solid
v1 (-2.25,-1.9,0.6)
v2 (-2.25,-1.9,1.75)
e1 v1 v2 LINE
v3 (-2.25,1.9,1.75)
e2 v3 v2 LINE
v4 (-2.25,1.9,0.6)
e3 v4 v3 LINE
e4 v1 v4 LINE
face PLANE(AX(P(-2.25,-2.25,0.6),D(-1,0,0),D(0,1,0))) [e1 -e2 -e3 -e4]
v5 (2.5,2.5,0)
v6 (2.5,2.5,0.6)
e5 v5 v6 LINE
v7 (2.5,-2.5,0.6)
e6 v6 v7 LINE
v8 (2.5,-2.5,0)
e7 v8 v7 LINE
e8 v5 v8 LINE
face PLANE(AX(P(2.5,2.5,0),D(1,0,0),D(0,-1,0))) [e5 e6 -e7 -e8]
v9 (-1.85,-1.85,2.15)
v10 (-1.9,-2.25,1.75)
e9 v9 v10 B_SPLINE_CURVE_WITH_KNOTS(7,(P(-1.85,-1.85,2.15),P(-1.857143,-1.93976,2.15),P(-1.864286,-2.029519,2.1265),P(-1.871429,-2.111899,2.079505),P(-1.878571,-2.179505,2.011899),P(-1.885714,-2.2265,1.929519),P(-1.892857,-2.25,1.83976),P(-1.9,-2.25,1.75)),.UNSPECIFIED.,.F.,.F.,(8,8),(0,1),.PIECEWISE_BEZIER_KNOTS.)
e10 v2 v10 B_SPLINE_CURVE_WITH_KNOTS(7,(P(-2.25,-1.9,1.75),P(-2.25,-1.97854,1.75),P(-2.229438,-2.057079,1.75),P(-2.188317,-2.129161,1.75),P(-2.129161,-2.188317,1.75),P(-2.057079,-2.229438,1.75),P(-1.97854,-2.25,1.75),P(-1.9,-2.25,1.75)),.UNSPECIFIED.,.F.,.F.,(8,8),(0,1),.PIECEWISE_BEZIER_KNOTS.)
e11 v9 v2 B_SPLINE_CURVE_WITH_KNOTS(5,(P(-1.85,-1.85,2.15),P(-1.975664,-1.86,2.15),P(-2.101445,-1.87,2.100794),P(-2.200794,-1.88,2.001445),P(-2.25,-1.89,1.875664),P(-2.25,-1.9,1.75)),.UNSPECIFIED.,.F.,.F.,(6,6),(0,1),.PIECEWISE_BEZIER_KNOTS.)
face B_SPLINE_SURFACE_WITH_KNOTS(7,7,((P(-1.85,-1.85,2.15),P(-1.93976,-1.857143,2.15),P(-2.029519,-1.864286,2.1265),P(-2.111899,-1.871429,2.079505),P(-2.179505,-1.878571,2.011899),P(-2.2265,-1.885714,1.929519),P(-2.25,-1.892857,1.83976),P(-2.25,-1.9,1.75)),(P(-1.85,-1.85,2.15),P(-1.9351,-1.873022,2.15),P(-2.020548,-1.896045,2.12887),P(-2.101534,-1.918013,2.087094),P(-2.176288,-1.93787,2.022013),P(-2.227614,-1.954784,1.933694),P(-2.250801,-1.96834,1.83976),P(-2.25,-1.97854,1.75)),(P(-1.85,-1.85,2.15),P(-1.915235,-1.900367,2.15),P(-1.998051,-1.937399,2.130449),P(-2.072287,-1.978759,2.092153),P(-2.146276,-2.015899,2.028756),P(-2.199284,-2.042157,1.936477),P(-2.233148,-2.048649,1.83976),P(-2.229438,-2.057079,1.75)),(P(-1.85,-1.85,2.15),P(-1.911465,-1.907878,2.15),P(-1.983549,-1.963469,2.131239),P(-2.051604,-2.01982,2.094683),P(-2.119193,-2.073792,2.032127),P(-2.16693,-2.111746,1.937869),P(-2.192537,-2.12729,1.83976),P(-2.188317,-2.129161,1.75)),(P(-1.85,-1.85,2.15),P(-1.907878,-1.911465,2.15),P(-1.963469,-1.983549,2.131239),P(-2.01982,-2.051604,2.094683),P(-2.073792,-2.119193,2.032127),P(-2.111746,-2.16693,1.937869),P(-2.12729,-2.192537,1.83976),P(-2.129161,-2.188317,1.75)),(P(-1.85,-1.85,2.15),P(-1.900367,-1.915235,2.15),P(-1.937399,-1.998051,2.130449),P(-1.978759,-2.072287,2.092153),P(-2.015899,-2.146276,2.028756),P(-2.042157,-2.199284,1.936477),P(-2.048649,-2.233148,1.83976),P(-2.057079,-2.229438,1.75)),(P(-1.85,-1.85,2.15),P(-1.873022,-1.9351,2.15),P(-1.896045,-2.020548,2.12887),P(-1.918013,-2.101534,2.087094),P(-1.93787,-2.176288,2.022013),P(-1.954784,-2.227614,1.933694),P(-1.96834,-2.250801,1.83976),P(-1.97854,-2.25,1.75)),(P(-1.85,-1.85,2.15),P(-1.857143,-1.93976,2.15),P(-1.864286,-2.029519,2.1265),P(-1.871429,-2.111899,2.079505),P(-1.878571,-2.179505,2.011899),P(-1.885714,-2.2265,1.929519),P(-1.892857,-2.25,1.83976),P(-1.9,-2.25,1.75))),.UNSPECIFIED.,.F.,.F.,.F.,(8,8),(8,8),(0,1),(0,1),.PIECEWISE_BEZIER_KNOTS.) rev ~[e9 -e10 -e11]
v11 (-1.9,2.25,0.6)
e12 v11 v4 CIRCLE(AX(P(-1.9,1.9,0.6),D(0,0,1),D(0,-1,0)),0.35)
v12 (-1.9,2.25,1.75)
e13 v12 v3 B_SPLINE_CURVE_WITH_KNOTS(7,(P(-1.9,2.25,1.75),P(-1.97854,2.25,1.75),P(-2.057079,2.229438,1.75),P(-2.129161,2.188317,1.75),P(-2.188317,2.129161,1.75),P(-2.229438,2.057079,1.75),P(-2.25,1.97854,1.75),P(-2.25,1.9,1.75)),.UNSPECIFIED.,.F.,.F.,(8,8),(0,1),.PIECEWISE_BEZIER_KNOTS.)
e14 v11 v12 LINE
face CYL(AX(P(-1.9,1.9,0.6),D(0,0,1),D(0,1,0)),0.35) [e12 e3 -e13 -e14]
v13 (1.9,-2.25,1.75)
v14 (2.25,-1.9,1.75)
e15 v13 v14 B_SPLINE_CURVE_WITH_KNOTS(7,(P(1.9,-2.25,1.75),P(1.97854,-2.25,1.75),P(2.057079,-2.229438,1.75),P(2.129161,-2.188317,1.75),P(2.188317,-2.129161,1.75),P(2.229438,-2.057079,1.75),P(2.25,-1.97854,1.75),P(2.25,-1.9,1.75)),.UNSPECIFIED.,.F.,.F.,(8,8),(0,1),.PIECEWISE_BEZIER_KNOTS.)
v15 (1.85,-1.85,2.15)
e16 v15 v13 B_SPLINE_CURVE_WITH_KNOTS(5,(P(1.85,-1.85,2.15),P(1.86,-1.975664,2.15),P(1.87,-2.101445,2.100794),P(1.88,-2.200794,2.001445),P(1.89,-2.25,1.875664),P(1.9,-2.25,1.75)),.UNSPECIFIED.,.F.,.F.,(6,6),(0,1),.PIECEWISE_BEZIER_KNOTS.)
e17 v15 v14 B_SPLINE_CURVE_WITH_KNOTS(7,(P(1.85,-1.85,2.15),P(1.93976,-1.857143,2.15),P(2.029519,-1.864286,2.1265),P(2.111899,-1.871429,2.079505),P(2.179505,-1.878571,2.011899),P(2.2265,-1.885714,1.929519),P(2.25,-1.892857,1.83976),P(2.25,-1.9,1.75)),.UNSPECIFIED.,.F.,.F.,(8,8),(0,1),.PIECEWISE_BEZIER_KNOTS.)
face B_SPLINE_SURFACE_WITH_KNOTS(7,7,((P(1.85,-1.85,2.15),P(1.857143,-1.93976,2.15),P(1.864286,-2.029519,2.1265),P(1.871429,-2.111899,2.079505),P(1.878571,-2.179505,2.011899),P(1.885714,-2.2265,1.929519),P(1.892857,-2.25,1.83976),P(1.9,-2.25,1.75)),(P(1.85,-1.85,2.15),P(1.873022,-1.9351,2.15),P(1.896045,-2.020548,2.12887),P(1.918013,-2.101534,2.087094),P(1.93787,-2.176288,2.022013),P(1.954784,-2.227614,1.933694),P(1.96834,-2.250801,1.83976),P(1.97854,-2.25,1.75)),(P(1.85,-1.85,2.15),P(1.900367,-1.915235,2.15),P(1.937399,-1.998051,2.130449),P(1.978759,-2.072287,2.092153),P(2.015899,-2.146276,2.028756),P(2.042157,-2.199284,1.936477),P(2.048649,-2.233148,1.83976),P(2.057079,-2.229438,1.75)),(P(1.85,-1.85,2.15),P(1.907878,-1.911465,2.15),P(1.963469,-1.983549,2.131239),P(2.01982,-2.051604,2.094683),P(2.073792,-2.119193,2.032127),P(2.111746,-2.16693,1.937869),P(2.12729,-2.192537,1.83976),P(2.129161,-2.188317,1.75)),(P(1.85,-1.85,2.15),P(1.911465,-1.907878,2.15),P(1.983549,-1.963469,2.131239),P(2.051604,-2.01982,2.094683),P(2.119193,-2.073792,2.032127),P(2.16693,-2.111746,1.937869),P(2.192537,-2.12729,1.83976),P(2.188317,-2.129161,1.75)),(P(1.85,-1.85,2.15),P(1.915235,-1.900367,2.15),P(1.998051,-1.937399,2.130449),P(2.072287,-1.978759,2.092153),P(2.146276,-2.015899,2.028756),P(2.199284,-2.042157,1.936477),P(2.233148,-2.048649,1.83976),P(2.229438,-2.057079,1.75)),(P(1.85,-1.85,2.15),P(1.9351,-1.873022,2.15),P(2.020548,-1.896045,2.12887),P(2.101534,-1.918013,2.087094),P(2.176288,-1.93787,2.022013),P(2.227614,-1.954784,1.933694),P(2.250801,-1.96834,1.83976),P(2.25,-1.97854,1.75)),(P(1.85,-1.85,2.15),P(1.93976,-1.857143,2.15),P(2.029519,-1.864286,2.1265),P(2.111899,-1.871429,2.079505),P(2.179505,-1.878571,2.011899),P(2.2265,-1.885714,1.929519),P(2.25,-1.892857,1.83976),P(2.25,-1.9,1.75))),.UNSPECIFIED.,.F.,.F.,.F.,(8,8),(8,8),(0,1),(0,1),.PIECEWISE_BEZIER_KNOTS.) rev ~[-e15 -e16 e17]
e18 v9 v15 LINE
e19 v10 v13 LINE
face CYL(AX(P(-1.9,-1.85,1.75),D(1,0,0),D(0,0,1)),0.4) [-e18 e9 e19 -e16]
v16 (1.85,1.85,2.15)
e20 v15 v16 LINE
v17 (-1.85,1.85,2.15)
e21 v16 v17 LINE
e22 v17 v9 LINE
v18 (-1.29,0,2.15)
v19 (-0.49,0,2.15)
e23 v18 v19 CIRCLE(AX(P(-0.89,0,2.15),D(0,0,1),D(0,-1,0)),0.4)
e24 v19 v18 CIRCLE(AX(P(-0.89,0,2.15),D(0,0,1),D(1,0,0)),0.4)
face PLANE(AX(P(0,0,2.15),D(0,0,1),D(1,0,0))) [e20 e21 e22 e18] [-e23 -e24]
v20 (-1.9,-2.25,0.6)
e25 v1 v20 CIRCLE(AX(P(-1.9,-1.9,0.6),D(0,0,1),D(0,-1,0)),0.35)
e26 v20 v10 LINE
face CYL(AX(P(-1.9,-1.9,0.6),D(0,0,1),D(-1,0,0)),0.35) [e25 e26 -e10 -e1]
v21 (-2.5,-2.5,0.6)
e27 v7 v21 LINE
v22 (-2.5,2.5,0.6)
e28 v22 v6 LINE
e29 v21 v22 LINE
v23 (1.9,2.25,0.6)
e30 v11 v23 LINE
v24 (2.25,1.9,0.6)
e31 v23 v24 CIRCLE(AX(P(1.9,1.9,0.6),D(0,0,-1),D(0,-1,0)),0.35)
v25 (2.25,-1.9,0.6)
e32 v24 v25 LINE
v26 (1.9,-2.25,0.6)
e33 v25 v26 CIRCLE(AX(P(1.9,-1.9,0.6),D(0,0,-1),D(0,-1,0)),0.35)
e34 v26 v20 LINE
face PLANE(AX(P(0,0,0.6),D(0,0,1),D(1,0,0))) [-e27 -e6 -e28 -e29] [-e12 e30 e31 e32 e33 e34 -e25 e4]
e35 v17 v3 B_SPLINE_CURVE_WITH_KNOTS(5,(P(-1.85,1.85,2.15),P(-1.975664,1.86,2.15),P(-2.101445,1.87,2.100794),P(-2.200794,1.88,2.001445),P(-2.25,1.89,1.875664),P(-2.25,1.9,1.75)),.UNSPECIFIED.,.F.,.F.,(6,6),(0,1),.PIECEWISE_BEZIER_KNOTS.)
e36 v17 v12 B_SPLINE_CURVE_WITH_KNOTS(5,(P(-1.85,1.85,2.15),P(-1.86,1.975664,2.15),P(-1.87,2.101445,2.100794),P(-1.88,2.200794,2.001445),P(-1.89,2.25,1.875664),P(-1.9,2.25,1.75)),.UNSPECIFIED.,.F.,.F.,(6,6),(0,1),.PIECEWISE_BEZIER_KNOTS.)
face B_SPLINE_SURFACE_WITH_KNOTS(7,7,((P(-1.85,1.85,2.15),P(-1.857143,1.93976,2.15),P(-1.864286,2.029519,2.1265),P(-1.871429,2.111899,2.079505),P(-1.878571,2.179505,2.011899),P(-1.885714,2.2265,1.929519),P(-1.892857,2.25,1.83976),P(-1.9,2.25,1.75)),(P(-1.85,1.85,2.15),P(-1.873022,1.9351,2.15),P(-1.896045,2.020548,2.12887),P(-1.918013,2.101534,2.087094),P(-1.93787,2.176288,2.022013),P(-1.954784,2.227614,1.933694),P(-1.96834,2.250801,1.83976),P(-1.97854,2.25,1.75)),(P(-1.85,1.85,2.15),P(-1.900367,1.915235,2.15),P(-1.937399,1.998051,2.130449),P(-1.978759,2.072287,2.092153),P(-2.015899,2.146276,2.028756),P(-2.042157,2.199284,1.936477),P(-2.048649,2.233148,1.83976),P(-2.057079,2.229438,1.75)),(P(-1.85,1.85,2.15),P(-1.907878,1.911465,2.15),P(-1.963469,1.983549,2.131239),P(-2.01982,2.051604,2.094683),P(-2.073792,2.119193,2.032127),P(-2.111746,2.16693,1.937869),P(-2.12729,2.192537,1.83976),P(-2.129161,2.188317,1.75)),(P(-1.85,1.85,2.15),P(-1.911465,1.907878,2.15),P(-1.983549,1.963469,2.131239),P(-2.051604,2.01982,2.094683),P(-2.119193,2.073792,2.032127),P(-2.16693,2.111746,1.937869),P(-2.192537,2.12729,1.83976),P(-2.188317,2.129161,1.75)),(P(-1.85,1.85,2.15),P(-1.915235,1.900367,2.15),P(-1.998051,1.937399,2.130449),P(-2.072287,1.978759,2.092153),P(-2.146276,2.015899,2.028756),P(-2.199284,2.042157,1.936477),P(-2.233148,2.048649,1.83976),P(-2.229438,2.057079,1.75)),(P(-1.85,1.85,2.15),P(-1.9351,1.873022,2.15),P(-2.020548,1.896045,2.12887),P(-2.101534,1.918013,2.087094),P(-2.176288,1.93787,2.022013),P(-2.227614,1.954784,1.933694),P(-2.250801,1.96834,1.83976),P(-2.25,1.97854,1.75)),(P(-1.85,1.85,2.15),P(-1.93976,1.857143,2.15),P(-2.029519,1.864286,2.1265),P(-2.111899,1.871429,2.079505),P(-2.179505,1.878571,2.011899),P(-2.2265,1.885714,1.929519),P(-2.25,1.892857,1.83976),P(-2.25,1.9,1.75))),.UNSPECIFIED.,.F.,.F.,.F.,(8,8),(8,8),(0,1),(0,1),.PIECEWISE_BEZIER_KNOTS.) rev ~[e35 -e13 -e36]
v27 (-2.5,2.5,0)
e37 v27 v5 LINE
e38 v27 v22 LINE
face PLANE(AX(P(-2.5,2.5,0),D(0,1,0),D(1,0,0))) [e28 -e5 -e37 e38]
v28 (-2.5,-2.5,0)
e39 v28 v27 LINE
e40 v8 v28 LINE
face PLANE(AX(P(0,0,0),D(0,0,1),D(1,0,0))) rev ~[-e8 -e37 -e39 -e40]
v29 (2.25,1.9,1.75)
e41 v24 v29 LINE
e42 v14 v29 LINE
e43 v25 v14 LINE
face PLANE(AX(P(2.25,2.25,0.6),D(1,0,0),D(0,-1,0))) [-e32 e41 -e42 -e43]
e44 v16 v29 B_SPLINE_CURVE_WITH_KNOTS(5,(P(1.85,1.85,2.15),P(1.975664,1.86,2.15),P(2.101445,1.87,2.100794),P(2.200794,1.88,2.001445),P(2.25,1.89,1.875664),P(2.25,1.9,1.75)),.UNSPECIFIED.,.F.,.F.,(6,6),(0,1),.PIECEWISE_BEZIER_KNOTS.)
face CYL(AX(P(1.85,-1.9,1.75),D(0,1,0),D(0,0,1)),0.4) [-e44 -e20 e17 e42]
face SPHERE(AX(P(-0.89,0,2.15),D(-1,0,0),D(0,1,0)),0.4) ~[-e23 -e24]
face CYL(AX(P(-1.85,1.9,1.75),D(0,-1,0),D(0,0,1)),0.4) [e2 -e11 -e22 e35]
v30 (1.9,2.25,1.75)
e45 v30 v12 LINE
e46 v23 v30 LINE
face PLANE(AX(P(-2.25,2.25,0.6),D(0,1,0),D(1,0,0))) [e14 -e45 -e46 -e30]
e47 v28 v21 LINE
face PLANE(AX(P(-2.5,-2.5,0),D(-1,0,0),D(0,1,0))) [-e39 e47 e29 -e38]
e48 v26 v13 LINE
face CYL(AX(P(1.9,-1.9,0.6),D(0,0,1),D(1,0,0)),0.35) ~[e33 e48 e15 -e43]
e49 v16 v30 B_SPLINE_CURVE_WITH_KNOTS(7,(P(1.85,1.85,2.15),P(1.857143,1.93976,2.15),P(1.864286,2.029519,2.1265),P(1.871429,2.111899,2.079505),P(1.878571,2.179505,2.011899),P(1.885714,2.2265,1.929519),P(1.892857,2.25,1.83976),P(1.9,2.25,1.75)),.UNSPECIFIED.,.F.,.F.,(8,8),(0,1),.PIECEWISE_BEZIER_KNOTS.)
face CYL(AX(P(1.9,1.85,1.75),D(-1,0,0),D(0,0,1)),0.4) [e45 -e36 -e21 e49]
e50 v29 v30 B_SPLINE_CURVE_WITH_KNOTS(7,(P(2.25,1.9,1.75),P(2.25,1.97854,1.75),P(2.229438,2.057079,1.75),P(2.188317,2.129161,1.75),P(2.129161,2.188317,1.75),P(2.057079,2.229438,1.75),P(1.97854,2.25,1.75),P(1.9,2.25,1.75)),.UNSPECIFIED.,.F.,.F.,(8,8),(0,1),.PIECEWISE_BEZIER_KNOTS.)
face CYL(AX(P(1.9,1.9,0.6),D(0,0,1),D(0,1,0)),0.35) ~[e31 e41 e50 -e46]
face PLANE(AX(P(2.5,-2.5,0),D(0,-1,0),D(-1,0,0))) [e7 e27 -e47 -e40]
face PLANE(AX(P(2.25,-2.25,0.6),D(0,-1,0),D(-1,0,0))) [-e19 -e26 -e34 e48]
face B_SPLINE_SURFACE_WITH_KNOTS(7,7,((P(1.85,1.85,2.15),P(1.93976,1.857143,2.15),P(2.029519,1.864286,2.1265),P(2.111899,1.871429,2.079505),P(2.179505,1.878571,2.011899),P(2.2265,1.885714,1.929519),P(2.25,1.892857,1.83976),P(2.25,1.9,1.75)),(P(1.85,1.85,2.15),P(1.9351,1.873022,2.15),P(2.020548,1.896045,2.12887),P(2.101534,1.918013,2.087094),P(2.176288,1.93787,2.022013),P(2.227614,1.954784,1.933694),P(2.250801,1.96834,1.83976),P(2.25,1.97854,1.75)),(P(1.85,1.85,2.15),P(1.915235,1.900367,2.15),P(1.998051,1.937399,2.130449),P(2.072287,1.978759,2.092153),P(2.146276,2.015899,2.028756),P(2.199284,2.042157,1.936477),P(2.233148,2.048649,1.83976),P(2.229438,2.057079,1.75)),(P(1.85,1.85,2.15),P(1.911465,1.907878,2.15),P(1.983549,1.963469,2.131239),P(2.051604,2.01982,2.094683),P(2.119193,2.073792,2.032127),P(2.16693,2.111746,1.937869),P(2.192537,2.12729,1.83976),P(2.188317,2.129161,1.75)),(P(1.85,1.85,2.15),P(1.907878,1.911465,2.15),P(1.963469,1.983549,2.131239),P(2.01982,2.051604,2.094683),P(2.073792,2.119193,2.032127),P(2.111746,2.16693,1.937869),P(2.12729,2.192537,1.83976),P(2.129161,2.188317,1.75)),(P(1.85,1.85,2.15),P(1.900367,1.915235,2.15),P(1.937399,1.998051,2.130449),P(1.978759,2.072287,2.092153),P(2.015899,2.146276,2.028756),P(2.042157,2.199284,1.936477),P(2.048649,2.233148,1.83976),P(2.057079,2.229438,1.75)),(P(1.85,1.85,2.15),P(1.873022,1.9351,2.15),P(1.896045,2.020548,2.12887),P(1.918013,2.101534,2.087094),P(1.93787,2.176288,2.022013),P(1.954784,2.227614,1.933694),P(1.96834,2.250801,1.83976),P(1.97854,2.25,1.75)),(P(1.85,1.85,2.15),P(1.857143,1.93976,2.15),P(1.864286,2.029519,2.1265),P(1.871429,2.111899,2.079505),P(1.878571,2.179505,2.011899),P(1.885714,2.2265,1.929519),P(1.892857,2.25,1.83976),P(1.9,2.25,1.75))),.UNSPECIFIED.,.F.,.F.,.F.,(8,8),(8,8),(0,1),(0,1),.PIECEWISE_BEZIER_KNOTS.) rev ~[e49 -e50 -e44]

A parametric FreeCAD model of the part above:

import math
import FreeCAD as App
import Part
import Sketcher
from FreeCAD import Vector


def edges_at(feature, points):
    """Names of the edges that pass closest to the given points."""
    edges = feature.Shape.Edges
    near = lambda p: min(range(len(edges)), key=lambda i: edges[i].distToShape(Part.Vertex(*p))[0])
    return sorted({f"Edge{near(p) + 1}" for p in points})

doc = App.newDocument("Part")
body = doc.addObject("PartDesign::Body", "Body")

sketch1 = doc.addObject("Sketcher::SketchObject", "Sketch")
body.addObject(sketch1)
sketch1.AttachmentSupport = (doc.XY_Plane, [""])
sketch1.MapMode = "FlatFace"
sketch1.addGeometry(Part.LineSegment(Vector(2, 2, 0), Vector(-2, 2, 0)), False)
sketch1.addGeometry(Part.LineSegment(Vector(-2, 2, 0), Vector(-2, -2, 0)), False)
sketch1.addGeometry(Part.LineSegment(Vector(-2, -2, 0), Vector(2, -2, 0)), False)
sketch1.addGeometry(Part.LineSegment(Vector(2, -2, 0), Vector(2, 2, 0)), False)
sketch1.addConstraint(Sketcher.Constraint("Coincident", 0, 2, 1, 1))
sketch1.addConstraint(Sketcher.Constraint("Coincident", 1, 2, 2, 1))
sketch1.addConstraint(Sketcher.Constraint("Coincident", 2, 2, 3, 1))
sketch1.addConstraint(Sketcher.Constraint("Coincident", 3, 2, 0, 1))
sketch1.addConstraint(Sketcher.Constraint("Horizontal", 0))
sketch1.addConstraint(Sketcher.Constraint("Vertical", 1))
sketch1.addConstraint(Sketcher.Constraint("Horizontal", 2))
sketch1.addConstraint(Sketcher.Constraint("Vertical", 3))
sketch1.addConstraint(Sketcher.Constraint("Symmetric", 0, 2, 2, 2, -1, 1))
sketch1.addConstraint(Sketcher.Constraint("Equal", 2, 1))
sketch1.addConstraint(Sketcher.Constraint("DistanceX", 0, 2, 0, 1, 5.0))
pad1 = doc.addObject("PartDesign::Pad", "Pad")
body.addObject(pad1)
pad1.Profile = sketch1
pad1.Length = 0.6

sketch2 = doc.addObject("Sketcher::SketchObject", "Sketch001")
body.addObject(sketch2)
sketch2.AttachmentSupport = (doc.XY_Plane, [""])
sketch2.MapMode = "FlatFace"
sketch2.AttachmentOffset = App.Placement(Vector(0, 0, 0.6), App.Rotation())
sketch2.addGeometry(Part.LineSegment(Vector(2.2, 2.2, 0), Vector(-2.2, 2.2, 0)), False)
sketch2.addGeometry(Part.LineSegment(Vector(-2.2, 2.2, 0), Vector(-2.2, -2.2, 0)), False)
sketch2.addGeometry(Part.LineSegment(Vector(-2.2, -2.2, 0), Vector(2.2, -2.2, 0)), False)
sketch2.addGeometry(Part.LineSegment(Vector(2.2, -2.2, 0), Vector(2.2, 2.2, 0)), False)
sketch2.addConstraint(Sketcher.Constraint("Coincident", 0, 2, 1, 1))
sketch2.addConstraint(Sketcher.Constraint("Coincident", 1, 2, 2, 1))
sketch2.addConstraint(Sketcher.Constraint("Coincident", 2, 2, 3, 1))
sketch2.addConstraint(Sketcher.Constraint("Coincident", 3, 2, 0, 1))
sketch2.addConstraint(Sketcher.Constraint("Horizontal", 0))
sketch2.addConstraint(Sketcher.Constraint("Vertical", 1))
sketch2.addConstraint(Sketcher.Constraint("Horizontal", 2))
sketch2.addConstraint(Sketcher.Constraint("Vertical", 3))
sketch2.addConstraint(Sketcher.Constraint("Symmetric", 0, 2, 2, 2, -1, 1))
sketch2.addConstraint(Sketcher.Constraint("Equal", 2, 1))
sketch2.addConstraint(Sketcher.Constraint("DistanceX", 0, 2, 0, 1, 4.5))
pad2 = doc.addObject("PartDesign::Pad", "Pad001")
body.addObject(pad2)
pad2.Profile = sketch2
pad2.Length = 1.55

sketch3 = doc.addObject("Sketcher::SketchObject", "Sketch002")
body.addObject(sketch3)
sketch3.AttachmentSupport = (doc.XY_Plane, [""])
sketch3.MapMode = "FlatFace"
sketch3.AttachmentOffset = App.Placement(Vector(0, 0, 2.15), App.Rotation())
sketch3.addGeometry(Part.LineSegment(Vector(-1.29, 0, 0), Vector(-0.49, 0, 0)), False)
sketch3.addGeometry(Part.ArcOfCircle(Part.Circle(Vector(-0.89, 0, 0), Vector(0, 0, 1), 0.4), math.radians(0), math.radians(180)), False)
sketch3.addConstraint(Sketcher.Constraint("Coincident", 0, 1, 1, 2))
sketch3.addConstraint(Sketcher.Constraint("Coincident", 1, 1, 0, 2))
sketch3.addConstraint(Sketcher.Constraint("Horizontal", 0))
sketch3.addConstraint(Sketcher.Constraint("PointOnObject", 1, 3, -1))
sketch3.addConstraint(Sketcher.Constraint("PointOnObject", 0, 1, -1))
sketch3.addConstraint(Sketcher.Constraint("Radius", 1, 0.4))
sketch3.addConstraint(Sketcher.Constraint("DistanceX", 1, 3, -1, 1, 0.89))
revolution = doc.addObject("PartDesign::Revolution", "Revolution")
body.addObject(revolution)
revolution.Profile = sketch3
revolution.ReferenceAxis = (sketch3, ["H_Axis"])
revolution.Angle = 360
doc.recompute()

fillet = doc.addObject("PartDesign::Fillet", "Fillet")
body.addObject(fillet)
fillet.Base = (revolution, edges_at(revolution, [
    (-2.25, -2.25, 1.375),
    (2.25, -2.25, 1.375),
    (2.25, 2.25, 1.375),
    (-2.25, 2.25, 1.375),
]))
fillet.Radius = 0.35
doc.recompute()

fillet2 = doc.addObject("PartDesign::Fillet", "Fillet001")
body.addObject(fillet2)
fillet2.Base = (fillet, edges_at(fillet, [
    (-2.147, 2.147, 2.15),
    (-2.25, 0, 2.15),
    (-2.147, -2.147, 2.15),
    (0, -2.25, 2.15),
    (2.147, -2.147, 2.15),
    (2.25, 0, 2.15),
    (2.147, 2.147, 2.15),
    (0, 2.25, 2.15),
]))
fillet2.Radius = 0.4

doc.recompute()
